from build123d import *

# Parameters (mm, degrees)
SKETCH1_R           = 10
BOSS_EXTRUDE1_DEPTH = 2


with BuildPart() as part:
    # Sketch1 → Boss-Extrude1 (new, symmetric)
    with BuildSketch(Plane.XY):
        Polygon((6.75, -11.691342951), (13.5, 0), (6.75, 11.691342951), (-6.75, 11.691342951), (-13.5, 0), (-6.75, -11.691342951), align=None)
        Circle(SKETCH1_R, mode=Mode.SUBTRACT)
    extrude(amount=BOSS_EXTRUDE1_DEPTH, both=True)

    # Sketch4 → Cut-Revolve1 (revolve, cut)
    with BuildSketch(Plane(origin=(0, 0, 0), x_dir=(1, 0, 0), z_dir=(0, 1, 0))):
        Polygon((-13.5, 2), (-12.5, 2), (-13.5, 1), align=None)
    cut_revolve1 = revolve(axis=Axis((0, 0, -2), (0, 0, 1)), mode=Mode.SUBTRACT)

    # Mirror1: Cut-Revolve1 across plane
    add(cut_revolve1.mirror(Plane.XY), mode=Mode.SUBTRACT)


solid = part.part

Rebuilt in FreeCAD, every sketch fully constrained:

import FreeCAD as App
import Part
import Sketcher

V = App.Vector
Q = App.Units.Quantity

doc = App.newDocument("Part")
body = doc.addObject("PartDesign::Body", "Body")

# Sketch on XY plane
sketch1 = body.newObject("Sketcher::SketchObject", "Sketch")
sketch1.AttachmentSupport = (doc.getObject("XY_Plane"), [""])
sketch1.MapMode = "FlatFace"
sketch1.addGeometry([
    Part.LineSegment(V(7, -12, 0), V(14, 0, 0)),  # 0
    Part.LineSegment(V(14, 0, 0), V(7, 12, 0)),  # 1
    Part.LineSegment(V(7, 12, 0), V(-7, 12, 0)),  # 2
    Part.LineSegment(V(-7, 12, 0), V(-14, 0, 0)),  # 3
    Part.LineSegment(V(-14, 0, 0), V(-7, -12, 0)),  # 4
    Part.LineSegment(V(-7, -12, 0), V(7, -12, 0)),  # 5
    Part.Circle(V(0, 0, 0), V(0, 0, 1), 10),  # 6
], False)
sketch1.addConstraint([
    Sketcher.Constraint("Coincident", 0, 2, 1, 1),
    Sketcher.Constraint("Coincident", 1, 2, 2, 1),
    Sketcher.Constraint("Coincident", 2, 2, 3, 1),
    Sketcher.Constraint("Coincident", 3, 2, 4, 1),
    Sketcher.Constraint("Coincident", 4, 2, 5, 1),
    Sketcher.Constraint("Coincident", 5, 2, 0, 1),
    Sketcher.Constraint("Horizontal", 2),
    Sketcher.Constraint("Horizontal", 5),
    Sketcher.Constraint("Coincident", 6, 3, -1, 1),
    Sketcher.Constraint("Symmetric", 0, 2, 3, 2, -1, 1),
    Sketcher.Constraint("Symmetric", 1, 2, 4, 2, -1, 1),
    Sketcher.Constraint("PointOnObject", 0, 2, -1),
    Sketcher.Constraint("Parallel", 0, 3),
    Sketcher.Constraint("Vertical", 2, 2, 4, 2),
    Sketcher.Constraint("Diameter", 6, Q("20 mm")),
    Sketcher.Constraint("Angle", 0, Q("60 deg")),
    Sketcher.Constraint("DistanceX", 2, 2, 2, 1, Q("13.5 mm")),
    Sketcher.Constraint("DistanceX", 3, 2, 0, 2, Q("27 mm")),
])
pad1 = body.newObject("PartDesign::Pad", "Pad")
pad1.Profile = sketch1
pad1.Length = 4
pad1.Midplane = True

# Sketch on XZ plane
sketch2 = body.newObject("Sketcher::SketchObject", "Sketch001")
sketch2.AttachmentSupport = (doc.getObject("XZ_Plane"), [""])
sketch2.MapMode = "FlatFace"
sketch2.addGeometry([
    Part.LineSegment(V(-12.5, -2, 0), V(-13.5, -2, 0)),
    Part.LineSegment(V(-13.5, -2, 0), V(-13.5, -1, 0)),
    Part.LineSegment(V(-13.5, -1, 0), V(-12.5, -2, 0)),
], False)
sketch2.addConstraint([
    Sketcher.Constraint("Coincident", 0, 2, 1, 1),
    Sketcher.Constraint("Coincident", 1, 2, 2, 1),
    Sketcher.Constraint("Coincident", 2, 2, 0, 1),
    Sketcher.Constraint("Horizontal", 0),
    Sketcher.Constraint("Vertical", 1),
    Sketcher.Constraint("Equal", 0, 1),
    Sketcher.Constraint("DistanceX", 0, 2, 0, 1, Q("1 mm")),
    Sketcher.Constraint("DistanceY", 0, 2, -1, 1, Q("2 mm")),
    Sketcher.Constraint("DistanceX", 0, 2, -1, 1, Q("13.5 mm")),
])
groove = body.newObject("PartDesign::Groove", "Groove")
groove.Profile = sketch2
groove.ReferenceAxis = (sketch2, ["V_Axis"])
groove.Angle = 360
doc.recompute()

mirrored = body.newObject("PartDesign::Mirrored", "Mirrored")
mirrored.Originals = [groove]
mirrored.MirrorPlane = (doc.getObject("XY_Plane"), [""])
body.Tip = mirrored

doc.recompute()
